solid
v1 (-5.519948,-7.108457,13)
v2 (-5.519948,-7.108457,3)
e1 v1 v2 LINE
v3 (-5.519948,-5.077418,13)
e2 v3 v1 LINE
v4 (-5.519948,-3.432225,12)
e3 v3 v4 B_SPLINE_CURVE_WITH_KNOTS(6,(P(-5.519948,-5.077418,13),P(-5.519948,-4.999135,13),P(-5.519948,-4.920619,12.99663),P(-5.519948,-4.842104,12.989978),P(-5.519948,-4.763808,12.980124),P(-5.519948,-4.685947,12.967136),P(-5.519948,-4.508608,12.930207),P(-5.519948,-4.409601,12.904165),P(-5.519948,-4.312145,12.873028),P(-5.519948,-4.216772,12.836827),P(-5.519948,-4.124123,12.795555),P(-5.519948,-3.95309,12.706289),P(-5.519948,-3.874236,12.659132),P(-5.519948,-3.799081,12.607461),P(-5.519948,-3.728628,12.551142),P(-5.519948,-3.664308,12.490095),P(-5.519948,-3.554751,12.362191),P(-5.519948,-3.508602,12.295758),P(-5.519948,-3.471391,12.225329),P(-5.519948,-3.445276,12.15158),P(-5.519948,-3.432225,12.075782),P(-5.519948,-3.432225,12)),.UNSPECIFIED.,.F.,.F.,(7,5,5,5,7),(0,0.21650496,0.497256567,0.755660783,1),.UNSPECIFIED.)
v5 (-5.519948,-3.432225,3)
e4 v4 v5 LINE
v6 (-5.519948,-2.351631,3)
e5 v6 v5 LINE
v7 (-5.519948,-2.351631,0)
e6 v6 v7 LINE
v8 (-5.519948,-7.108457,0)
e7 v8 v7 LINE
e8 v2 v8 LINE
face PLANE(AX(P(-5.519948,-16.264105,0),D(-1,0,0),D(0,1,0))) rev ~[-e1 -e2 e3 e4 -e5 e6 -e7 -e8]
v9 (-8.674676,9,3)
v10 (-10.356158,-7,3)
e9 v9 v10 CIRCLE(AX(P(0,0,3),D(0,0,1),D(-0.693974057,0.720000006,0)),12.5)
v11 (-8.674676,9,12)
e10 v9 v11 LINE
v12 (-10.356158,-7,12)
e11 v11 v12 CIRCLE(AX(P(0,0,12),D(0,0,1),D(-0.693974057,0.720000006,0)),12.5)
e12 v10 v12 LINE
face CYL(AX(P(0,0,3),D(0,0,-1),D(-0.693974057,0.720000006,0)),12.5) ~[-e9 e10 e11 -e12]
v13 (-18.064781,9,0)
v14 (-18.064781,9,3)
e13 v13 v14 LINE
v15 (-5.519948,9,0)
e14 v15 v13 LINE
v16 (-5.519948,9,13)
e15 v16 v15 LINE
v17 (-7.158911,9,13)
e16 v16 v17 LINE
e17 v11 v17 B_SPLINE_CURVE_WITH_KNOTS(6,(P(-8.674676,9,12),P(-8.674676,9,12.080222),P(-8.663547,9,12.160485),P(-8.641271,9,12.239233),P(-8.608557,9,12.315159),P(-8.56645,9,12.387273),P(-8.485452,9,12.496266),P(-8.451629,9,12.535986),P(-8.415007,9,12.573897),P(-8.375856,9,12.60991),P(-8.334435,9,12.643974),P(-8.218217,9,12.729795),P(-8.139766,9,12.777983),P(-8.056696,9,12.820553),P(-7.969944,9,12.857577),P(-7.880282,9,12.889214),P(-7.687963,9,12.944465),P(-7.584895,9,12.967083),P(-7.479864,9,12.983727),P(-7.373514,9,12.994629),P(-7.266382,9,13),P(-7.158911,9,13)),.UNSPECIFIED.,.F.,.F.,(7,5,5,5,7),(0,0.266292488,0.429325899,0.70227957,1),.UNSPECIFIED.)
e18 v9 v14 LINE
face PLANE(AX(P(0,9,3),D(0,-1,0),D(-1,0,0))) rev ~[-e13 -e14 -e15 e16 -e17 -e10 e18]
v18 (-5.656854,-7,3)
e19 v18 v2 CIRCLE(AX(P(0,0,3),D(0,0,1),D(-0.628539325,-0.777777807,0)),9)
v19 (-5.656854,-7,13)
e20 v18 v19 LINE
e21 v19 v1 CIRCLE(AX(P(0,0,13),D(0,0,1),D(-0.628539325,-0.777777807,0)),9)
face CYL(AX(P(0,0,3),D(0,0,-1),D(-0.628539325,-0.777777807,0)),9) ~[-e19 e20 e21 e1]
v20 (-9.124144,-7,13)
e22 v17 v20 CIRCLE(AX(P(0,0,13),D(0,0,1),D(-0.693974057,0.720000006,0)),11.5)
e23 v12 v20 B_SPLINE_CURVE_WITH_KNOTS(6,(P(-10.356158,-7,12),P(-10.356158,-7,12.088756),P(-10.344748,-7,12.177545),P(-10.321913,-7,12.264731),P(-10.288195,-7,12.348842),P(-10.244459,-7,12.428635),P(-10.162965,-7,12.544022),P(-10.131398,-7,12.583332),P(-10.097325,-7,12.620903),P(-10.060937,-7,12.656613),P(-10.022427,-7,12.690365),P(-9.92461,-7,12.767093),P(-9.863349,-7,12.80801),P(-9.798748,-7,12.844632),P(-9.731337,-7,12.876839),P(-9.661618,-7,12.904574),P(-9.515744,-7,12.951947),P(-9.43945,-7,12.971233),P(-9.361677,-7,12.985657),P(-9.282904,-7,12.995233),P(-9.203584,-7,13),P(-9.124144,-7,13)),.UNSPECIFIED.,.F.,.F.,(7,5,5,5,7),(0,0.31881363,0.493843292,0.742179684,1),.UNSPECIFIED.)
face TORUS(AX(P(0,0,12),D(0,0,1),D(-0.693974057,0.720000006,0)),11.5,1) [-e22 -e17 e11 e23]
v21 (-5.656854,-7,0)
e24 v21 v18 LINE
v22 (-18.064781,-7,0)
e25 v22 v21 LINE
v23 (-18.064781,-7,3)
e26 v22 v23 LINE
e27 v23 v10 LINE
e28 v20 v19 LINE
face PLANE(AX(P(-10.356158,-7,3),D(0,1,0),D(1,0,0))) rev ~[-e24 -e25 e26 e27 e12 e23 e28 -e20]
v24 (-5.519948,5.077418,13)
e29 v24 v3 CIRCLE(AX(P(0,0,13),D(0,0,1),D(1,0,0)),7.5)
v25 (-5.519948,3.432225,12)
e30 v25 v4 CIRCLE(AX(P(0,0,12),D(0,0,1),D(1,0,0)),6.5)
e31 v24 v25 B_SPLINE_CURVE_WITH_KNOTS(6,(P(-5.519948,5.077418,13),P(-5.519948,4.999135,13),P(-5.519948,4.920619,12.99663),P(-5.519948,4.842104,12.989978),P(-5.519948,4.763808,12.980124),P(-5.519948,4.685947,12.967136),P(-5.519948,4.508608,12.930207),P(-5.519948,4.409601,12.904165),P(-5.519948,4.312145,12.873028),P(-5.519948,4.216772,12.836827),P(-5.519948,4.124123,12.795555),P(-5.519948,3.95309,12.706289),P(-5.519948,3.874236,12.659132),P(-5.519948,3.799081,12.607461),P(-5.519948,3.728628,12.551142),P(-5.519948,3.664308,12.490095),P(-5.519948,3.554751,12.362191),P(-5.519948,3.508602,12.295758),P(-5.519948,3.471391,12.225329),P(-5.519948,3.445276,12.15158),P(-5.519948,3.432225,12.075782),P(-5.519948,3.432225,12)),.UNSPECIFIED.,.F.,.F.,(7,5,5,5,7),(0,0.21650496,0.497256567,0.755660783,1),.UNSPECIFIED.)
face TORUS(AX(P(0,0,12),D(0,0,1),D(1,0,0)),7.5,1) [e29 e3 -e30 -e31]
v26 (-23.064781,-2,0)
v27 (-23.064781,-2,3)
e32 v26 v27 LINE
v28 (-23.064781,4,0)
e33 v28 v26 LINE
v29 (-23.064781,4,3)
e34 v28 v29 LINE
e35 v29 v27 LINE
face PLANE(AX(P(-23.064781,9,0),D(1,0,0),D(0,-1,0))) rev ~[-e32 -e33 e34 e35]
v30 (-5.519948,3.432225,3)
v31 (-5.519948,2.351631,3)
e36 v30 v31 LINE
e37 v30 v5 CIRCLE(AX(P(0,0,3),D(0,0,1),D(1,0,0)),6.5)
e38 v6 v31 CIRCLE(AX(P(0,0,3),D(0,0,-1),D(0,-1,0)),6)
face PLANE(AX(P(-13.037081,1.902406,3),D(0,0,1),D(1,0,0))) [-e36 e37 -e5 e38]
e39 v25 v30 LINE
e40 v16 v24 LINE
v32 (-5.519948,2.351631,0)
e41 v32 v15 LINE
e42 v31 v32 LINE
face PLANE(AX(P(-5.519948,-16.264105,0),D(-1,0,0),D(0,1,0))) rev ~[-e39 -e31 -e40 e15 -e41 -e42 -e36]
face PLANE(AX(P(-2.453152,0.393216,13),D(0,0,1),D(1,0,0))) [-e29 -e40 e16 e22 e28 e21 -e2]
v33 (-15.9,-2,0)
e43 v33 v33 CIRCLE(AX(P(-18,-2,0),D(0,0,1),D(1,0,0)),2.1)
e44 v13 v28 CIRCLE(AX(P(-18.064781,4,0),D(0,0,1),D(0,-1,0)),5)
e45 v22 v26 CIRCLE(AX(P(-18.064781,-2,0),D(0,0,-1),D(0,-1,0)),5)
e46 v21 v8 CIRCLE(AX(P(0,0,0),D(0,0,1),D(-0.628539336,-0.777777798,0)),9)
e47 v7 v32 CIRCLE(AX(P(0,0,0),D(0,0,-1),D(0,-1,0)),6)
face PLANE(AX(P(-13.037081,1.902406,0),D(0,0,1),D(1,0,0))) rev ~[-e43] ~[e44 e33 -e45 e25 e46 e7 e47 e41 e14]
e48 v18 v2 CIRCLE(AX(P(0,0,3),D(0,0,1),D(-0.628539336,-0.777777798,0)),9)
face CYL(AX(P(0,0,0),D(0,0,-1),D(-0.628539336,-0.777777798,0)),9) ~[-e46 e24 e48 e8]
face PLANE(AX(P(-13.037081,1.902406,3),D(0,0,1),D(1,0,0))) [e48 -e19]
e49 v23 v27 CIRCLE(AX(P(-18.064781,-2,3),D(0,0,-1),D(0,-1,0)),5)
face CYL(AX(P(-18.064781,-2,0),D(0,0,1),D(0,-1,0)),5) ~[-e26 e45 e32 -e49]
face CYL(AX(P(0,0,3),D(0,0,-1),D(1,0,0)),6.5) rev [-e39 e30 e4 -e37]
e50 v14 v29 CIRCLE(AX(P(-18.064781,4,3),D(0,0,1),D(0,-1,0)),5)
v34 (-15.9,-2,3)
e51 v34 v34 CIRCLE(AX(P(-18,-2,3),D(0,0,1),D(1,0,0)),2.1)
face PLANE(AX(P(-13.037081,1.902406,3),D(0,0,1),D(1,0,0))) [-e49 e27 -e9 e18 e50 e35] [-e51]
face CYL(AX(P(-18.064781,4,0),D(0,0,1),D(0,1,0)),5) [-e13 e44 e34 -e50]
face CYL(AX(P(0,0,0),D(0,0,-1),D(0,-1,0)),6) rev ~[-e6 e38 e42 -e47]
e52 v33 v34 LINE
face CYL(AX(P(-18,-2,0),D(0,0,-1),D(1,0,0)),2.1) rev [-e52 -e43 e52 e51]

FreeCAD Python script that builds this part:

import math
import FreeCAD as App
import Part
import Sketcher
Q = App.Units.Quantity


def edges_at(feature, points):
    """Names of the edges that pass closest to the given points."""
    edges = feature.Shape.Edges
    near = lambda p: min(range(len(edges)), key=lambda i: edges[i].distToShape(Part.Vertex(*p))[0])
    return sorted({f"Edge{near(p) + 1}" for p in points})


def add_polygon(sketch, points):
    """Adds a closed chain of lines whose ends are joined by coincident constraints."""
    first, n = sketch.GeometryCount, len(points)
    for a, b in zip(points, points[1:] + points[:1]):
        sketch.addGeometry(Part.LineSegment(App.Vector(*a, 0), App.Vector(*b, 0)), False)
    for i in range(n):
        sketch.addConstraint(Sketcher.Constraint("Coincident", first + i, 2, first + (i + 1) % n, 1))

doc = App.newDocument("Part")
body = doc.addObject("PartDesign::Body", "Body")

# Sketch on XY plane
sketch1 = doc.addObject("Sketcher::SketchObject", "Sketch")
body.addObject(sketch1)
sketch1.AttachmentSupport = (doc.XY_Plane, [""])
sketch1.MapMode = "FlatFace"
sketch1.addGeometry([
    Part.LineSegment(App.Vector(-23.064781, -7, 0), App.Vector(-5.656854, -7, 0)),  # 0
    Part.ArcOfCircle(Part.Circle(App.Vector(0, 0, 0), App.Vector(0, 0, 1), 9), math.radians(-128.942439), math.radians(-0.000001)),  # 1
    Part.ArcOfCircle(Part.Circle(App.Vector(0, 0, 0), App.Vector(0, 0, 1), 9), math.radians(0.000001), math.radians(89.999999)),  # 2
    Part.LineSegment(App.Vector(0, 9, 0), App.Vector(-23.064781, 9, 0)),  # 3
    Part.LineSegment(App.Vector(-23.064781, 9, 0), App.Vector(-23.064781, -7, 0)),  # 4
    Part.ArcOfCircle(Part.Circle(App.Vector(0, 0, 0), App.Vector(0, 0, 1), 6), math.radians(90), math.radians(270)),  # 5
    Part.ArcOfCircle(Part.Circle(App.Vector(0.000001, 0.000001, 0), App.Vector(0, 0, 1), 5.999999), math.radians(-0.00001), math.radians(90.00001)),  # 6
    Part.ArcOfCircle(Part.Circle(App.Vector(0.000001, -0.000001, 0), App.Vector(0, 0, 1), 5.999999), math.radians(-90.00001), math.radians(0.00001)),  # 7
    Part.Circle(App.Vector(-18, -2, 0), App.Vector(0, 0, 1), 2.1),  # 8
], False)
sketch1.addConstraint([
    Sketcher.Constraint("Coincident", 0, 2, 1, 1),
    Sketcher.Constraint("Tangent", 1, 2, 2, 1),
    Sketcher.Constraint("Tangent", 2, 2, 3, 1),
    Sketcher.Constraint("Coincident", 3, 2, 4, 1),
    Sketcher.Constraint("Coincident", 4, 2, 0, 1),
    Sketcher.Constraint("Tangent", 5, 1, 6, 2),
    Sketcher.Constraint("Tangent", 6, 1, 7, 2),
    Sketcher.Constraint("Tangent", 7, 1, 5, 2),
    Sketcher.Constraint("Horizontal", 0),
    Sketcher.Constraint("Horizontal", 3),
    Sketcher.Constraint("Vertical", 4),
    Sketcher.Constraint("Coincident", 1, 3, -1, 1),
    Sketcher.Constraint("Coincident", 5, 3, -1, 1),
    Sketcher.Constraint("Equal", 1, 2),
    Sketcher.Constraint("PointOnObject", 1, 2, -1),
    Sketcher.Constraint("PointOnObject", 5, 1, -2),
    Sketcher.Constraint("PointOnObject", 6, 1, -1),
    Sketcher.Constraint("PointOnObject", 7, 1, -2),
    Sketcher.Constraint("Radius", 1, Q("9 mm")),
    Sketcher.Constraint("Radius", 5, Q("6 mm")),
    Sketcher.Constraint("Diameter", 8, Q("4.2 mm")),
    Sketcher.Constraint("DistanceY", 4, 2, 4, 1, Q("16 mm")),
    Sketcher.Constraint("DistanceX", 8, 3, -1, 1, Q("18 mm")),
    Sketcher.Constraint("DistanceY", 8, 3, -1, 1, Q("2 mm")),
    Sketcher.Constraint("DistanceX", 3, 2, 3, 1, Q("23.064781 mm")),
])
pad1 = doc.addObject("PartDesign::Pad", "Pad")
body.addObject(pad1)
pad1.Profile = sketch1
pad1.Length = 3
doc.recompute()

fillet = doc.addObject("PartDesign::Fillet", "Fillet")
body.addObject(fillet)
fillet.Base = (pad1, edges_at(pad1, [(-23.065, 9, 1.5), (-23.065, -7, 1.5)]))
fillet.Radius = 5

# Sketch on XY plane
sketch2 = doc.addObject("Sketcher::SketchObject", "Sketch001")
body.addObject(sketch2)
sketch2.AttachmentSupport = (doc.XY_Plane, [""])
sketch2.MapMode = "FlatFace"
sketch2.AttachmentOffset = App.Placement(App.Vector(0, 0, 3), App.Rotation())
sketch2.addGeometry([
    Part.LineSegment(App.Vector(0, 9, 0), App.Vector(-8.674676, 9, 0)),  # 0
    Part.ArcOfCircle(Part.Circle(App.Vector(0, 0, 0), App.Vector(0, 0, 1), 12.5), math.radians(133.945519), math.radians(214.055797)),  # 1
    Part.LineSegment(App.Vector(-10.356158, -7, 0), App.Vector(-5.656854, -7, 0)),  # 2
    Part.ArcOfCircle(Part.Circle(App.Vector(0, 0, 0), App.Vector(0, 0, 1), 9), math.radians(-128.942439), math.radians(89.999999)),  # 3
    Part.Circle(App.Vector(0, 0, 0), App.Vector(0, 0, 1), 6.5),  # 4
], False)
sketch2.addConstraint([
    Sketcher.Constraint("Coincident", 0, 2, 1, 1),
    Sketcher.Constraint("Coincident", 1, 2, 2, 1),
    Sketcher.Constraint("Coincident", 2, 2, 3, 1),
    Sketcher.Constraint("Tangent", 3, 2, 0, 1),
    Sketcher.Constraint("Horizontal", 0),
    Sketcher.Constraint("Horizontal", 2),
    Sketcher.Constraint("Coincident", 1, 3, -1, 1),
    Sketcher.Constraint("Coincident", 3, 3, -1, 1),
    Sketcher.Constraint("Coincident", 4, 3, -1, 1),
    Sketcher.Constraint("Diameter", 4, Q("13 mm")),
    Sketcher.Constraint("Radius", 3, Q("9 mm")),
    Sketcher.Constraint("Radius", 1, Q("12.5 mm")),
    Sketcher.Constraint("DistanceY", 1, 2, -1, 1, Q("7 mm")),
])
pad2 = doc.addObject("PartDesign::Pad", "Pad001")
body.addObject(pad2)
pad2.Profile = sketch2
pad2.Length = 10
doc.recompute()

fillet2 = doc.addObject("PartDesign::Fillet", "Fillet001")
body.addObject(fillet2)
fillet2.Base = (pad2, edges_at(pad2, [(-12.432, 1.306, 13), (-6.5, 0, 13)]))
fillet2.Radius = 1

# Sketch on XY plane
sketch3 = doc.addObject("Sketcher::SketchObject", "Sketch002")
body.addObject(sketch3)
sketch3.AttachmentSupport = (doc.XY_Plane, [""])
sketch3.MapMode = "FlatFace"
add_polygon(sketch3, [(-5.519948, 20.221803), (-5.519948, -16.264105), (12.415885, -16.264105), (12.415885, 20.221803)])  # lines 0-3
sketch3.addConstraint([
    Sketcher.Constraint("Vertical", 0),
    Sketcher.Constraint("Horizontal", 1),
    Sketcher.Constraint("Vertical", 2),
    Sketcher.Constraint("Horizontal", 3),
    Sketcher.Constraint("DistanceY", 0, 2, 0, 1, Q("36.485908 mm")),
    Sketcher.Constraint("DistanceX", 1, 1, 1, 2, Q("17.935833 mm")),
    Sketcher.Constraint("DistanceX", 0, 2, -1, 1, Q("5.519948 mm")),
    Sketcher.Constraint("DistanceY", 0, 2, -1, 1, Q("16.264105 mm")),
])
pocket1 = doc.addObject("PartDesign::Pocket", "Pocket")
body.addObject(pocket1)
pocket1.Profile = sketch3
pocket1.Type = "ThroughAll"
pocket1.Reversed = True

doc.recompute()
